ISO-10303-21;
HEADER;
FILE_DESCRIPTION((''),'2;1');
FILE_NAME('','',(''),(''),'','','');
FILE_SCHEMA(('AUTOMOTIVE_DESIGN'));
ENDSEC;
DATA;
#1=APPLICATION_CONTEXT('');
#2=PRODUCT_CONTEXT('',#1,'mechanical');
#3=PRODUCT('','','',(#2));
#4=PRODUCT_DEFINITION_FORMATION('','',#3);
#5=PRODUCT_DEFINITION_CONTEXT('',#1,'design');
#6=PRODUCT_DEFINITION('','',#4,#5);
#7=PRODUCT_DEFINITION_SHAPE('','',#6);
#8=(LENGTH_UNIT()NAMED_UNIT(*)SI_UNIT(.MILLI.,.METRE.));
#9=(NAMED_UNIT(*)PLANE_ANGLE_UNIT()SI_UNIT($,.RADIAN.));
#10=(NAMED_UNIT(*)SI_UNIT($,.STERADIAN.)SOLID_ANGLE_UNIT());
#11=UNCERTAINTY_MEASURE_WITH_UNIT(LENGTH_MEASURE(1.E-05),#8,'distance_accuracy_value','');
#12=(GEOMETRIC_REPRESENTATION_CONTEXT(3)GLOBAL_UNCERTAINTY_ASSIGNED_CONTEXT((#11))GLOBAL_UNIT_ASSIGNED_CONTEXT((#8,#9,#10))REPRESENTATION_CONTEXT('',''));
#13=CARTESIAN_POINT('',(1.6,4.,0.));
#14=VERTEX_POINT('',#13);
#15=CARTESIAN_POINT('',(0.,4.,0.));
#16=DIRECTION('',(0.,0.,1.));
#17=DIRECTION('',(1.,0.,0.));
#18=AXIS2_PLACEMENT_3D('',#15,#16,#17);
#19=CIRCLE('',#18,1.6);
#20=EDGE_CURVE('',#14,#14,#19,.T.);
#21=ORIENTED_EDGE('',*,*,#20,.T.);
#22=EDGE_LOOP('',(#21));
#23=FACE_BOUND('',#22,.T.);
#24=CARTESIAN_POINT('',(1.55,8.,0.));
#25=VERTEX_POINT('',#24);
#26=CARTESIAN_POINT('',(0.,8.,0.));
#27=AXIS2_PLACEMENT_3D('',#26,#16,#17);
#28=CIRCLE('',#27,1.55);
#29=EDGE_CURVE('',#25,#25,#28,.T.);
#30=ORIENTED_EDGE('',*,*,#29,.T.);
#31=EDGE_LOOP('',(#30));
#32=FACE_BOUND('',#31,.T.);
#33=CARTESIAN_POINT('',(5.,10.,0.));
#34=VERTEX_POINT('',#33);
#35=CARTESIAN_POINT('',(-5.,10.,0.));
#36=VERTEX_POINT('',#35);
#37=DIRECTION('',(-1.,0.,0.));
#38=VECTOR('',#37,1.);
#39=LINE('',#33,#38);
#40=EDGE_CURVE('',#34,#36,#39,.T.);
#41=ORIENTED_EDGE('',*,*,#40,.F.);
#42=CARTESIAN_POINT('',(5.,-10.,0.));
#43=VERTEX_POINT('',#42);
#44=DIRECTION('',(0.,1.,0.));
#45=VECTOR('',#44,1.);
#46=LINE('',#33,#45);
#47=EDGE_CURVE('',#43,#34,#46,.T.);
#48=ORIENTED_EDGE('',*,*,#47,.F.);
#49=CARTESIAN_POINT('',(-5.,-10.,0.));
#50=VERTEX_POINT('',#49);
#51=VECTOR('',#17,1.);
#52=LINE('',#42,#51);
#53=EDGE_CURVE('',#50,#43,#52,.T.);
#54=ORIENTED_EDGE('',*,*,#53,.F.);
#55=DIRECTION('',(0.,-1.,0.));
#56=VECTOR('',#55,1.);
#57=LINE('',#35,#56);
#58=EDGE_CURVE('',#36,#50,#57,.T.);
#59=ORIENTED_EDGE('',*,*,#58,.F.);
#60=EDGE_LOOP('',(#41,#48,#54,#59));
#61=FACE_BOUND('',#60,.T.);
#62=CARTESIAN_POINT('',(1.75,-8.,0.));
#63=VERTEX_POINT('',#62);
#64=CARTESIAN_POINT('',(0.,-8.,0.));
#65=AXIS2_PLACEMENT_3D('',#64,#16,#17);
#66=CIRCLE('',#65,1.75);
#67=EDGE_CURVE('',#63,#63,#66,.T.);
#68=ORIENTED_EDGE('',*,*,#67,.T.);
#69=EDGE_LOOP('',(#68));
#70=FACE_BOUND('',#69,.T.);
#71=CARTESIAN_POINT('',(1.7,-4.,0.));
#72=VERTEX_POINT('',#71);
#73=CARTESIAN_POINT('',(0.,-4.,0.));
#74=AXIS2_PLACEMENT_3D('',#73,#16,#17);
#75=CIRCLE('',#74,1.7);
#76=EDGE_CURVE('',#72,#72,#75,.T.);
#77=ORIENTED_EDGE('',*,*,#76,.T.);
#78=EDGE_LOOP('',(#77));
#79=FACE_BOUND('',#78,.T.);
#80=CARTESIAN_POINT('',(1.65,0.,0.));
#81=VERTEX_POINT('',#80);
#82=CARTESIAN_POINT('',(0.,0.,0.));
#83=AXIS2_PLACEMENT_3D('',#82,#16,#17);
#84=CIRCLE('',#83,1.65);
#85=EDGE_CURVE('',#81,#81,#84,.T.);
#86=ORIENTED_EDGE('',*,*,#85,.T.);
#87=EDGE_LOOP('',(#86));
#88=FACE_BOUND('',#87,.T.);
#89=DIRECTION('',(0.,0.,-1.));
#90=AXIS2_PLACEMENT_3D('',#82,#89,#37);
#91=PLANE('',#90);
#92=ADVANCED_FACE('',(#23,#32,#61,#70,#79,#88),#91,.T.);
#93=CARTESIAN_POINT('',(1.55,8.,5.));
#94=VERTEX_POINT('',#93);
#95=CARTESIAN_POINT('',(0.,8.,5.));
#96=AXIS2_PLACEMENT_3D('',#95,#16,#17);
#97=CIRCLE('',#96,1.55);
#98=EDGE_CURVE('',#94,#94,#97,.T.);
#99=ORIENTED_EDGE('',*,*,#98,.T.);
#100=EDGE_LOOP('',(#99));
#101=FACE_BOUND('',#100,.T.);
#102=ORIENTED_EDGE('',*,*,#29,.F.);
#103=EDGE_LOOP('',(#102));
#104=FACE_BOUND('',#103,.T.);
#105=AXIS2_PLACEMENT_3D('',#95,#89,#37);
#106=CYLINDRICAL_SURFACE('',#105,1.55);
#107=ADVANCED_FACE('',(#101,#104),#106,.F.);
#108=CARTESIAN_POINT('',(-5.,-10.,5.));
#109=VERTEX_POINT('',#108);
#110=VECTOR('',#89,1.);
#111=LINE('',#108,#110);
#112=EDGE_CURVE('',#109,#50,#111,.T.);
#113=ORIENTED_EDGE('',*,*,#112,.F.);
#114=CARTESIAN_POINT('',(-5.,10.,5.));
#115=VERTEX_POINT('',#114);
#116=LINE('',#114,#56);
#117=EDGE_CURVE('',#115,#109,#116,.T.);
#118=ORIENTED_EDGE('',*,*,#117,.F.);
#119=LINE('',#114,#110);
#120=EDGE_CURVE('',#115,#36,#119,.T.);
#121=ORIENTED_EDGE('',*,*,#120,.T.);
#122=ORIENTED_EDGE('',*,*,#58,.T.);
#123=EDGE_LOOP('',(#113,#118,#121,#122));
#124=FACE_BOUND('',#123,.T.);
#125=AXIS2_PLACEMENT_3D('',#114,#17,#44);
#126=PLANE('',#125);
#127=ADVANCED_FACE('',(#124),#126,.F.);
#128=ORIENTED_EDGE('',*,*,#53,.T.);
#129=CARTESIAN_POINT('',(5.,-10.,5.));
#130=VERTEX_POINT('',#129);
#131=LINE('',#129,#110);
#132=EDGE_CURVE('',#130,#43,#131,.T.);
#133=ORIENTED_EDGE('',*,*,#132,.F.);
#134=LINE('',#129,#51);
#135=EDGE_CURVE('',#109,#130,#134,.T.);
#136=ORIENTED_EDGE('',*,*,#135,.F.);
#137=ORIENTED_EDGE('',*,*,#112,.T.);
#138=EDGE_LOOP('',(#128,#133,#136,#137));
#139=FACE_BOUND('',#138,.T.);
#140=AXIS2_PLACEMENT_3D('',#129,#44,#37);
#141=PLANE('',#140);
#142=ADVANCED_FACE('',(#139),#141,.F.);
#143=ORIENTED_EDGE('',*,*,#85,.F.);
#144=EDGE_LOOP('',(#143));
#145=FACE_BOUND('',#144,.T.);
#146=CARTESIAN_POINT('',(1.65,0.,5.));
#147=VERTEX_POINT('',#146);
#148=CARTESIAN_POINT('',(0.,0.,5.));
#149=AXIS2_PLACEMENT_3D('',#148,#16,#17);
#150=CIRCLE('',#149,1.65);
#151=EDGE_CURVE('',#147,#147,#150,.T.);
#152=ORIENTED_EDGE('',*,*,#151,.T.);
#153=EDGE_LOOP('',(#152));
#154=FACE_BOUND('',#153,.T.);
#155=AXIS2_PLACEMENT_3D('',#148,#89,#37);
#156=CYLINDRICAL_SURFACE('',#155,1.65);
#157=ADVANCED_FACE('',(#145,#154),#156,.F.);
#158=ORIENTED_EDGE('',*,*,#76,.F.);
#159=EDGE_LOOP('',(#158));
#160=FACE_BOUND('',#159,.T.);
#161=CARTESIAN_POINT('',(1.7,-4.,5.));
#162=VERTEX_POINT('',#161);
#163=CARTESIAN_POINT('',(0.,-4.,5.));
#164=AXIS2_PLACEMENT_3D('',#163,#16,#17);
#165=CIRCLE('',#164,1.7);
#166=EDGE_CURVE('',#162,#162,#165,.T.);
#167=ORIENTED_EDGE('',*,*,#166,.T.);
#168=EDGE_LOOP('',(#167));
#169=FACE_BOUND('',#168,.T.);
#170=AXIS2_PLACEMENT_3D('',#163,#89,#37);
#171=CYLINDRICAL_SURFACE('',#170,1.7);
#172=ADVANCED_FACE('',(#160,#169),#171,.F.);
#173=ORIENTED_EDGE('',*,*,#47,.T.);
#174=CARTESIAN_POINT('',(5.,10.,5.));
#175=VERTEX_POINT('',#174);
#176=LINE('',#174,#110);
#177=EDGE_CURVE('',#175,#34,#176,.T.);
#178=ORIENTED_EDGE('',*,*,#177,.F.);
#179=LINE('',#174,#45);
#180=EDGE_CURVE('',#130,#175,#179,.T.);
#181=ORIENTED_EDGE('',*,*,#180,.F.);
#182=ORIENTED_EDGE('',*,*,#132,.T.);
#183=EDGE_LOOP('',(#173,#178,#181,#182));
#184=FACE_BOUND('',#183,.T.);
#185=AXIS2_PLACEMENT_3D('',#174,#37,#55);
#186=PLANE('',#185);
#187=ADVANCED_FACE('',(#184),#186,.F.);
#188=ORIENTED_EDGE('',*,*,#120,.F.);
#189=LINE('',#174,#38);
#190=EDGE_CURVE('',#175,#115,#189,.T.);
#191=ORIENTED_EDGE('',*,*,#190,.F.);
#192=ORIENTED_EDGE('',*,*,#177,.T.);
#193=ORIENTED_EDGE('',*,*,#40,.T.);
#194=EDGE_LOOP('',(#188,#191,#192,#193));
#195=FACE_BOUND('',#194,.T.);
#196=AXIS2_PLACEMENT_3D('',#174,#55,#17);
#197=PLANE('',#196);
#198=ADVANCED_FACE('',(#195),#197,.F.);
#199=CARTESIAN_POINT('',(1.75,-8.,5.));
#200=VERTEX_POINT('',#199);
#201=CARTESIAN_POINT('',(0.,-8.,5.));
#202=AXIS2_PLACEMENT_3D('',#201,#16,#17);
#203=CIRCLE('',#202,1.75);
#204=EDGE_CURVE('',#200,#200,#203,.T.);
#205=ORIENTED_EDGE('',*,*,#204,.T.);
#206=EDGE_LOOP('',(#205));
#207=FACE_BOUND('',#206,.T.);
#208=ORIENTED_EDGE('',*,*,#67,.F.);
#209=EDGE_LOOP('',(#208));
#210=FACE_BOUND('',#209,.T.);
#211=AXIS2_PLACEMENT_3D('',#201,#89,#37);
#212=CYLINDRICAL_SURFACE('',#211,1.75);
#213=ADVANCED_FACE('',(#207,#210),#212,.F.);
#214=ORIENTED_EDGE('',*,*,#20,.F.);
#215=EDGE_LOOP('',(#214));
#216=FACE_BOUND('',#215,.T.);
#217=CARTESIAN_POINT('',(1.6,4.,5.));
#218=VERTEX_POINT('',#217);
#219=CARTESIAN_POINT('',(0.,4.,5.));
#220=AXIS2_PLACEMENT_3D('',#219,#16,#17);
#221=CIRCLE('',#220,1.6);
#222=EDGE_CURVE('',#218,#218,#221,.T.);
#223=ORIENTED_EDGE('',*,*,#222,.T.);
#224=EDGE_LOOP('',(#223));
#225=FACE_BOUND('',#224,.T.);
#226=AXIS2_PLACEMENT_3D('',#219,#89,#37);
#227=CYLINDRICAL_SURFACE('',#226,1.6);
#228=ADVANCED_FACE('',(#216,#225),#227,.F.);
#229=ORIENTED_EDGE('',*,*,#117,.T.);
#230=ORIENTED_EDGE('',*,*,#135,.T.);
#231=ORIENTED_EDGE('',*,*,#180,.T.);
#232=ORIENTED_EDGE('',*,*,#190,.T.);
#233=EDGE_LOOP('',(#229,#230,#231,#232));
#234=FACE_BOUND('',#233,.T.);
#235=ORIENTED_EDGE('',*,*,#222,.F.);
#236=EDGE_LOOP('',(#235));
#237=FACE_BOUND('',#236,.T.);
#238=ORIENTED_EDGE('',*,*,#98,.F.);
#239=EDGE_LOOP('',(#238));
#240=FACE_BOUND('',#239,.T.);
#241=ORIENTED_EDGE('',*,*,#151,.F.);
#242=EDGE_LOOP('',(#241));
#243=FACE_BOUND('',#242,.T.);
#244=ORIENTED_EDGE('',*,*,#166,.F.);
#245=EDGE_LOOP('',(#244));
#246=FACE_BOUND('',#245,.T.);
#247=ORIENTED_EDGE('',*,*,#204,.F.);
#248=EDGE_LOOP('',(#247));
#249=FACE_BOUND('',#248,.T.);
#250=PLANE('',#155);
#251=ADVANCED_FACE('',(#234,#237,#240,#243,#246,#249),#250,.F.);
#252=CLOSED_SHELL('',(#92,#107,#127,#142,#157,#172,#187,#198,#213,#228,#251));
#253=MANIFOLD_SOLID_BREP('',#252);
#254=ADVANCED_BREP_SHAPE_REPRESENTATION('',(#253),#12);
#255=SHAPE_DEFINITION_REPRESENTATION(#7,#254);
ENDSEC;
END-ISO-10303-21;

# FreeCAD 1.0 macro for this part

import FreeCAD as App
import Part
import Sketcher
from FreeCAD import Vector
Q = App.Units.Quantity

doc = App.newDocument("Part")
params = doc.addObject("Spreadsheet::Sheet", "Params")
for row, (alias, value) in enumerate([
    ("sketch1_diameter", "3.5 mm"),
    ("sketch1_diameter2", "3.4 mm"),
    ("sketch1_diameter3", "3.3 mm"),
    ("sketch1_diameter4", "3.2 mm"),
    ("sketch1_diameter5", "3.1 mm"),
    ("pad1_length", "5 mm"),
], start=1):
    params.set(f"A{row}", alias)
    params.set(f"B{row}", "=" + value)
    params.setAlias(f"B{row}", alias)

body = doc.addObject("PartDesign::Body", "Body")

# Sketch on XY plane
sketch1 = doc.addObject("Sketcher::SketchObject", "Sketch")
body.addObject(sketch1)
sketch1.AttachmentSupport = (doc.XY_Plane, [""])
sketch1.MapMode = "FlatFace"
sketch1.addGeometry([
    Part.LineSegment(Vector(-5, 10, 0), Vector(-5, -10, 0)),  # 0
    Part.LineSegment(Vector(-5, -10, 0), Vector(5, -10, 0)),  # 1
    Part.LineSegment(Vector(5, -10, 0), Vector(5, 10, 0)),  # 2
    Part.LineSegment(Vector(5, 10, 0), Vector(-5, 10, 0)),  # 3
    Part.Circle(Vector(0, -8, 0), Vector(0, 0, 1), 1.8),  # 4
    Part.Circle(Vector(0, -4, 0), Vector(0, 0, 1), 1.7),  # 5
    Part.Circle(Vector(0, 0, 0), Vector(0, 0, 1), 1.6),  # 6
    Part.Circle(Vector(0, 4, 0), Vector(0, 0, 1), 1.6),  # 7
    Part.Circle(Vector(0, 8, 0), Vector(0, 0, 1), 1.6),  # 8
], False)
sketch1.addConstraint([
    Sketcher.Constraint("Coincident", 0, 2, 1, 1),
    Sketcher.Constraint("Coincident", 1, 2, 2, 1),
    Sketcher.Constraint("Coincident", 2, 2, 3, 1),
    Sketcher.Constraint("Coincident", 3, 2, 0, 1),
    Sketcher.Constraint("Vertical", 0),
    Sketcher.Constraint("Horizontal", 1),
    Sketcher.Constraint("Vertical", 2),
    Sketcher.Constraint("Horizontal", 3),
    Sketcher.Constraint("Coincident", 6, 3, -1, 1),
    Sketcher.Constraint("Symmetric", 5, 3, 7, 3, -1, 1),
    Sketcher.Constraint("Symmetric", 4, 3, 8, 3, -1, 1),
    Sketcher.Constraint("Symmetric", 0, 2, 2, 2, -1, 1),
    Sketcher.Constraint("PointOnObject", 4, 3, -2),
    Sketcher.Constraint("PointOnObject", 5, 3, -2),
    Sketcher.Constraint("Diameter", 4, Q("3.5 mm")),
    Sketcher.Constraint("Diameter", 5, Q("3.4 mm")),
    Sketcher.Constraint("Diameter", 6, Q("3.3 mm")),
    Sketcher.Constraint("Diameter", 7, Q("3.2 mm")),
    Sketcher.Constraint("Diameter", 8, Q("3.1 mm")),
    Sketcher.Constraint("DistanceX", 1, 1, 1, 2, Q("10 mm")),
    Sketcher.Constraint("DistanceY", 0, 2, 0, 1, Q("20 mm")),
    Sketcher.Constraint("DistanceY", 4, 3, -1, 1, Q("8 mm")),
    Sketcher.Constraint("DistanceY", 5, 3, -1, 1, Q("4 mm")),
])
sketch1.setExpression("Constraints[14]", "Params.sketch1_diameter")
sketch1.setExpression("Constraints[15]", "Params.sketch1_diameter2")
sketch1.setExpression("Constraints[16]", "Params.sketch1_diameter3")
sketch1.setExpression("Constraints[17]", "Params.sketch1_diameter4")
sketch1.setExpression("Constraints[18]", "Params.sketch1_diameter5")
pad1 = doc.addObject("PartDesign::Pad", "Pad")
body.addObject(pad1)
pad1.Profile = sketch1
pad1.setExpression("Length", "Params.pad1_length")

doc.recompute()
